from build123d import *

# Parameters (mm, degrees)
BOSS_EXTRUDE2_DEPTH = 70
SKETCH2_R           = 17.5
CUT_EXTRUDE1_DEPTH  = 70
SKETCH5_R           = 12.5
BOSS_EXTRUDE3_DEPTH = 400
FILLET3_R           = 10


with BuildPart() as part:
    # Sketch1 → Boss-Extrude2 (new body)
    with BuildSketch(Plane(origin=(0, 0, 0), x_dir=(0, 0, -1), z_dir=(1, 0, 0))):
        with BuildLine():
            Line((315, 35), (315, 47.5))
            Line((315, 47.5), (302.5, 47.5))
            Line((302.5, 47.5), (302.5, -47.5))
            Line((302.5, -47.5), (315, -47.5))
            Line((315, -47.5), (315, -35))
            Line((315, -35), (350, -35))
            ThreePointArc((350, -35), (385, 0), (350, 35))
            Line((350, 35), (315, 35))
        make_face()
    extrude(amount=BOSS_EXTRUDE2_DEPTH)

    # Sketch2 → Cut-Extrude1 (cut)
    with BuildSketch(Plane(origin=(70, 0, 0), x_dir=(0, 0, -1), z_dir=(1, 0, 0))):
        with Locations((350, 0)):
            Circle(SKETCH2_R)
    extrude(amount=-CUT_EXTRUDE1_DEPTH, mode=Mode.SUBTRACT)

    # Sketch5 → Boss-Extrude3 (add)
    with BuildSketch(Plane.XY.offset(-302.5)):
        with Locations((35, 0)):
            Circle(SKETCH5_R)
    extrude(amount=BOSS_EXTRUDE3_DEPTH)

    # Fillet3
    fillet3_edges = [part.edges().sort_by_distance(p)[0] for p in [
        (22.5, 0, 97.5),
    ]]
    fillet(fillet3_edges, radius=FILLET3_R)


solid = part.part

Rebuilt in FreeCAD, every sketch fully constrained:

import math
import FreeCAD as App
import Part
import Sketcher

V = App.Vector


def edges_at(feature, points):
    """Names of the edges that pass closest to the given points."""
    edges = feature.Shape.Edges
    near = lambda p: min(range(len(edges)), key=lambda i: edges[i].distToShape(Part.Vertex(*p))[0])
    return sorted({f"Edge{near(p) + 1}" for p in points})

doc = App.newDocument("Part")
params = doc.addObject("Spreadsheet::Sheet", "Params")
for row, (alias, value) in enumerate([
    ("sketch1_radius", "35 mm"),
    ("sketch1_width", "95 mm"),
    ("sketch1_height", "35 mm"),
    ("pad1_length", "70 mm"),
    ("sketch2_diameter", "35 mm"),
    ("pocket1_length", "70 mm"),
    ("sketch3_diameter", "25 mm"),
    ("pad2_length", "400 mm"),
    ("fillet_radius", "10 mm"),
], start=1):
    params.set(f"A{row}", alias)
    params.set(f"B{row}", "=" + value)
    params.setAlias(f"B{row}", alias)

body = doc.addObject("PartDesign::Body", "Body")

# Sketch on YZ plane
sketch1 = body.newObject("Sketcher::SketchObject", "Sketch")
sketch1.AttachmentSupport = (doc.getObject("YZ_Plane"), [""])
sketch1.MapMode = "FlatFace"
sketch1.addGeometry(Part.LineSegment(V(35, -315, 0), V(47.5, -315, 0)), False)
sketch1.addGeometry(Part.LineSegment(V(47.5, -315, 0), V(47.5, -302.5, 0)), False)
sketch1.addGeometry(Part.LineSegment(V(47.5, -302.5, 0), V(-47.5, -302.5, 0)), False)
sketch1.addGeometry(Part.LineSegment(V(-47.5, -302.5, 0), V(-47.5, -315, 0)), False)
sketch1.addGeometry(Part.LineSegment(V(-47.5, -315, 0), V(-35, -315, 0)), False)
sketch1.addGeometry(Part.LineSegment(V(-35, -315, 0), V(-35, -350, 0)), False)
sketch1.addGeometry(Part.ArcOfCircle(Part.Circle(V(0, -350, 0), V(0, 0, 1), 35), math.radians(180), math.radians(360)), False)
sketch1.addGeometry(Part.LineSegment(V(35, -350, 0), V(35, -315, 0)), False)
sketch1.addConstraint(Sketcher.Constraint("Coincident", 0, 2, 1, 1))
sketch1.addConstraint(Sketcher.Constraint("Coincident", 1, 2, 2, 1))
sketch1.addConstraint(Sketcher.Constraint("Coincident", 2, 2, 3, 1))
sketch1.addConstraint(Sketcher.Constraint("Coincident", 3, 2, 4, 1))
sketch1.addConstraint(Sketcher.Constraint("Coincident", 4, 2, 5, 1))
sketch1.addConstraint(Sketcher.Constraint("Tangent", 5, 2, 6, 1))
sketch1.addConstraint(Sketcher.Constraint("Tangent", 6, 2, 7, 1))
sketch1.addConstraint(Sketcher.Constraint("Coincident", 7, 2, 0, 1))
sketch1.addConstraint(Sketcher.Constraint("Horizontal", 0))
sketch1.addConstraint(Sketcher.Constraint("Vertical", 1))
sketch1.addConstraint(Sketcher.Constraint("Horizontal", 2))
sketch1.addConstraint(Sketcher.Constraint("Vertical", 3))
sketch1.addConstraint(Sketcher.Constraint("Horizontal", 4))
sketch1.addConstraint(Sketcher.Constraint("Vertical", 5))
sketch1.addConstraint(Sketcher.Constraint("Vertical", 7))
sketch1.addConstraint(Sketcher.Constraint("Symmetric", 0, 2, 3, 2, -2))
sketch1.addConstraint(Sketcher.Constraint("PointOnObject", 6, 3, -2))
sketch1.addConstraint(Sketcher.Constraint("Equal", 4, 1))
sketch1.addConstraint(Sketcher.Constraint("Radius", 6, 35.0))
sketch1.addConstraint(Sketcher.Constraint("DistanceX", 2, 2, 2, 1, 95.0))
sketch1.addConstraint(Sketcher.Constraint("DistanceY", 5, 2, 5, 1, 35.0))
sketch1.addConstraint(Sketcher.Constraint("DistanceY", 6, 3, -1, 1, 350.0))
sketch1.setExpression("Constraints[18]", "Params.sketch1_radius")
sketch1.setExpression("Constraints[19]", "Params.sketch1_width")
sketch1.setExpression("Constraints[20]", "Params.sketch1_height")
pad1 = body.newObject("PartDesign::Pad", "Pad")
pad1.Profile = sketch1
pad1.setExpression("Length", "Params.pad1_length")

# Sketch on YZ plane
sketch2 = body.newObject("Sketcher::SketchObject", "Sketch001")
sketch2.AttachmentSupport = (doc.getObject("YZ_Plane"), [""])
sketch2.MapMode = "FlatFace"
sketch2.AttachmentOffset = App.Placement(V(0, 0, 70), App.Rotation())
sketch2.addGeometry(Part.Circle(V(0, -350, 0), V(0, 0, 1), 17.5), False)
sketch2.addConstraint(Sketcher.Constraint("PointOnObject", 0, 3, -2))
sketch2.addConstraint(Sketcher.Constraint("Diameter", 0, 35.0))
sketch2.addConstraint(Sketcher.Constraint("DistanceY", 0, 3, -1, 1, 350.0))
sketch2.setExpression("Constraints[1]", "Params.sketch2_diameter")
pocket1 = body.newObject("PartDesign::Pocket", "Pocket")
pocket1.Profile = sketch2
pocket1.setExpression("Length", "Params.pocket1_length")

# Sketch on XY plane
sketch3 = body.newObject("Sketcher::SketchObject", "Sketch002")
sketch3.AttachmentSupport = (doc.getObject("XY_Plane"), [""])
sketch3.MapMode = "FlatFace"
sketch3.AttachmentOffset = App.Placement(V(0, 0, -302.5), App.Rotation())
sketch3.addGeometry(Part.Circle(V(35, 0, 0), V(0, 0, 1), 12.5), False)
sketch3.addConstraint(Sketcher.Constraint("PointOnObject", 0, 3, -1))
sketch3.addConstraint(Sketcher.Constraint("Diameter", 0, 25.0))
sketch3.addConstraint(Sketcher.Constraint("DistanceX", -1, 1, 0, 3, 35.0))
sketch3.setExpression("Constraints[1]", "Params.sketch3_diameter")
pad2 = body.newObject("PartDesign::Pad", "Pad001")
pad2.Profile = sketch3
pad2.setExpression("Length", "Params.pad2_length")
doc.recompute()

fillet = body.newObject("PartDesign::Fillet", "Fillet")
fillet.Base = (pad2, edges_at(pad2, [(22.5, 0, 97.5)]))
fillet.setExpression("Radius", "Params.fillet_radius")

doc.recompute()
